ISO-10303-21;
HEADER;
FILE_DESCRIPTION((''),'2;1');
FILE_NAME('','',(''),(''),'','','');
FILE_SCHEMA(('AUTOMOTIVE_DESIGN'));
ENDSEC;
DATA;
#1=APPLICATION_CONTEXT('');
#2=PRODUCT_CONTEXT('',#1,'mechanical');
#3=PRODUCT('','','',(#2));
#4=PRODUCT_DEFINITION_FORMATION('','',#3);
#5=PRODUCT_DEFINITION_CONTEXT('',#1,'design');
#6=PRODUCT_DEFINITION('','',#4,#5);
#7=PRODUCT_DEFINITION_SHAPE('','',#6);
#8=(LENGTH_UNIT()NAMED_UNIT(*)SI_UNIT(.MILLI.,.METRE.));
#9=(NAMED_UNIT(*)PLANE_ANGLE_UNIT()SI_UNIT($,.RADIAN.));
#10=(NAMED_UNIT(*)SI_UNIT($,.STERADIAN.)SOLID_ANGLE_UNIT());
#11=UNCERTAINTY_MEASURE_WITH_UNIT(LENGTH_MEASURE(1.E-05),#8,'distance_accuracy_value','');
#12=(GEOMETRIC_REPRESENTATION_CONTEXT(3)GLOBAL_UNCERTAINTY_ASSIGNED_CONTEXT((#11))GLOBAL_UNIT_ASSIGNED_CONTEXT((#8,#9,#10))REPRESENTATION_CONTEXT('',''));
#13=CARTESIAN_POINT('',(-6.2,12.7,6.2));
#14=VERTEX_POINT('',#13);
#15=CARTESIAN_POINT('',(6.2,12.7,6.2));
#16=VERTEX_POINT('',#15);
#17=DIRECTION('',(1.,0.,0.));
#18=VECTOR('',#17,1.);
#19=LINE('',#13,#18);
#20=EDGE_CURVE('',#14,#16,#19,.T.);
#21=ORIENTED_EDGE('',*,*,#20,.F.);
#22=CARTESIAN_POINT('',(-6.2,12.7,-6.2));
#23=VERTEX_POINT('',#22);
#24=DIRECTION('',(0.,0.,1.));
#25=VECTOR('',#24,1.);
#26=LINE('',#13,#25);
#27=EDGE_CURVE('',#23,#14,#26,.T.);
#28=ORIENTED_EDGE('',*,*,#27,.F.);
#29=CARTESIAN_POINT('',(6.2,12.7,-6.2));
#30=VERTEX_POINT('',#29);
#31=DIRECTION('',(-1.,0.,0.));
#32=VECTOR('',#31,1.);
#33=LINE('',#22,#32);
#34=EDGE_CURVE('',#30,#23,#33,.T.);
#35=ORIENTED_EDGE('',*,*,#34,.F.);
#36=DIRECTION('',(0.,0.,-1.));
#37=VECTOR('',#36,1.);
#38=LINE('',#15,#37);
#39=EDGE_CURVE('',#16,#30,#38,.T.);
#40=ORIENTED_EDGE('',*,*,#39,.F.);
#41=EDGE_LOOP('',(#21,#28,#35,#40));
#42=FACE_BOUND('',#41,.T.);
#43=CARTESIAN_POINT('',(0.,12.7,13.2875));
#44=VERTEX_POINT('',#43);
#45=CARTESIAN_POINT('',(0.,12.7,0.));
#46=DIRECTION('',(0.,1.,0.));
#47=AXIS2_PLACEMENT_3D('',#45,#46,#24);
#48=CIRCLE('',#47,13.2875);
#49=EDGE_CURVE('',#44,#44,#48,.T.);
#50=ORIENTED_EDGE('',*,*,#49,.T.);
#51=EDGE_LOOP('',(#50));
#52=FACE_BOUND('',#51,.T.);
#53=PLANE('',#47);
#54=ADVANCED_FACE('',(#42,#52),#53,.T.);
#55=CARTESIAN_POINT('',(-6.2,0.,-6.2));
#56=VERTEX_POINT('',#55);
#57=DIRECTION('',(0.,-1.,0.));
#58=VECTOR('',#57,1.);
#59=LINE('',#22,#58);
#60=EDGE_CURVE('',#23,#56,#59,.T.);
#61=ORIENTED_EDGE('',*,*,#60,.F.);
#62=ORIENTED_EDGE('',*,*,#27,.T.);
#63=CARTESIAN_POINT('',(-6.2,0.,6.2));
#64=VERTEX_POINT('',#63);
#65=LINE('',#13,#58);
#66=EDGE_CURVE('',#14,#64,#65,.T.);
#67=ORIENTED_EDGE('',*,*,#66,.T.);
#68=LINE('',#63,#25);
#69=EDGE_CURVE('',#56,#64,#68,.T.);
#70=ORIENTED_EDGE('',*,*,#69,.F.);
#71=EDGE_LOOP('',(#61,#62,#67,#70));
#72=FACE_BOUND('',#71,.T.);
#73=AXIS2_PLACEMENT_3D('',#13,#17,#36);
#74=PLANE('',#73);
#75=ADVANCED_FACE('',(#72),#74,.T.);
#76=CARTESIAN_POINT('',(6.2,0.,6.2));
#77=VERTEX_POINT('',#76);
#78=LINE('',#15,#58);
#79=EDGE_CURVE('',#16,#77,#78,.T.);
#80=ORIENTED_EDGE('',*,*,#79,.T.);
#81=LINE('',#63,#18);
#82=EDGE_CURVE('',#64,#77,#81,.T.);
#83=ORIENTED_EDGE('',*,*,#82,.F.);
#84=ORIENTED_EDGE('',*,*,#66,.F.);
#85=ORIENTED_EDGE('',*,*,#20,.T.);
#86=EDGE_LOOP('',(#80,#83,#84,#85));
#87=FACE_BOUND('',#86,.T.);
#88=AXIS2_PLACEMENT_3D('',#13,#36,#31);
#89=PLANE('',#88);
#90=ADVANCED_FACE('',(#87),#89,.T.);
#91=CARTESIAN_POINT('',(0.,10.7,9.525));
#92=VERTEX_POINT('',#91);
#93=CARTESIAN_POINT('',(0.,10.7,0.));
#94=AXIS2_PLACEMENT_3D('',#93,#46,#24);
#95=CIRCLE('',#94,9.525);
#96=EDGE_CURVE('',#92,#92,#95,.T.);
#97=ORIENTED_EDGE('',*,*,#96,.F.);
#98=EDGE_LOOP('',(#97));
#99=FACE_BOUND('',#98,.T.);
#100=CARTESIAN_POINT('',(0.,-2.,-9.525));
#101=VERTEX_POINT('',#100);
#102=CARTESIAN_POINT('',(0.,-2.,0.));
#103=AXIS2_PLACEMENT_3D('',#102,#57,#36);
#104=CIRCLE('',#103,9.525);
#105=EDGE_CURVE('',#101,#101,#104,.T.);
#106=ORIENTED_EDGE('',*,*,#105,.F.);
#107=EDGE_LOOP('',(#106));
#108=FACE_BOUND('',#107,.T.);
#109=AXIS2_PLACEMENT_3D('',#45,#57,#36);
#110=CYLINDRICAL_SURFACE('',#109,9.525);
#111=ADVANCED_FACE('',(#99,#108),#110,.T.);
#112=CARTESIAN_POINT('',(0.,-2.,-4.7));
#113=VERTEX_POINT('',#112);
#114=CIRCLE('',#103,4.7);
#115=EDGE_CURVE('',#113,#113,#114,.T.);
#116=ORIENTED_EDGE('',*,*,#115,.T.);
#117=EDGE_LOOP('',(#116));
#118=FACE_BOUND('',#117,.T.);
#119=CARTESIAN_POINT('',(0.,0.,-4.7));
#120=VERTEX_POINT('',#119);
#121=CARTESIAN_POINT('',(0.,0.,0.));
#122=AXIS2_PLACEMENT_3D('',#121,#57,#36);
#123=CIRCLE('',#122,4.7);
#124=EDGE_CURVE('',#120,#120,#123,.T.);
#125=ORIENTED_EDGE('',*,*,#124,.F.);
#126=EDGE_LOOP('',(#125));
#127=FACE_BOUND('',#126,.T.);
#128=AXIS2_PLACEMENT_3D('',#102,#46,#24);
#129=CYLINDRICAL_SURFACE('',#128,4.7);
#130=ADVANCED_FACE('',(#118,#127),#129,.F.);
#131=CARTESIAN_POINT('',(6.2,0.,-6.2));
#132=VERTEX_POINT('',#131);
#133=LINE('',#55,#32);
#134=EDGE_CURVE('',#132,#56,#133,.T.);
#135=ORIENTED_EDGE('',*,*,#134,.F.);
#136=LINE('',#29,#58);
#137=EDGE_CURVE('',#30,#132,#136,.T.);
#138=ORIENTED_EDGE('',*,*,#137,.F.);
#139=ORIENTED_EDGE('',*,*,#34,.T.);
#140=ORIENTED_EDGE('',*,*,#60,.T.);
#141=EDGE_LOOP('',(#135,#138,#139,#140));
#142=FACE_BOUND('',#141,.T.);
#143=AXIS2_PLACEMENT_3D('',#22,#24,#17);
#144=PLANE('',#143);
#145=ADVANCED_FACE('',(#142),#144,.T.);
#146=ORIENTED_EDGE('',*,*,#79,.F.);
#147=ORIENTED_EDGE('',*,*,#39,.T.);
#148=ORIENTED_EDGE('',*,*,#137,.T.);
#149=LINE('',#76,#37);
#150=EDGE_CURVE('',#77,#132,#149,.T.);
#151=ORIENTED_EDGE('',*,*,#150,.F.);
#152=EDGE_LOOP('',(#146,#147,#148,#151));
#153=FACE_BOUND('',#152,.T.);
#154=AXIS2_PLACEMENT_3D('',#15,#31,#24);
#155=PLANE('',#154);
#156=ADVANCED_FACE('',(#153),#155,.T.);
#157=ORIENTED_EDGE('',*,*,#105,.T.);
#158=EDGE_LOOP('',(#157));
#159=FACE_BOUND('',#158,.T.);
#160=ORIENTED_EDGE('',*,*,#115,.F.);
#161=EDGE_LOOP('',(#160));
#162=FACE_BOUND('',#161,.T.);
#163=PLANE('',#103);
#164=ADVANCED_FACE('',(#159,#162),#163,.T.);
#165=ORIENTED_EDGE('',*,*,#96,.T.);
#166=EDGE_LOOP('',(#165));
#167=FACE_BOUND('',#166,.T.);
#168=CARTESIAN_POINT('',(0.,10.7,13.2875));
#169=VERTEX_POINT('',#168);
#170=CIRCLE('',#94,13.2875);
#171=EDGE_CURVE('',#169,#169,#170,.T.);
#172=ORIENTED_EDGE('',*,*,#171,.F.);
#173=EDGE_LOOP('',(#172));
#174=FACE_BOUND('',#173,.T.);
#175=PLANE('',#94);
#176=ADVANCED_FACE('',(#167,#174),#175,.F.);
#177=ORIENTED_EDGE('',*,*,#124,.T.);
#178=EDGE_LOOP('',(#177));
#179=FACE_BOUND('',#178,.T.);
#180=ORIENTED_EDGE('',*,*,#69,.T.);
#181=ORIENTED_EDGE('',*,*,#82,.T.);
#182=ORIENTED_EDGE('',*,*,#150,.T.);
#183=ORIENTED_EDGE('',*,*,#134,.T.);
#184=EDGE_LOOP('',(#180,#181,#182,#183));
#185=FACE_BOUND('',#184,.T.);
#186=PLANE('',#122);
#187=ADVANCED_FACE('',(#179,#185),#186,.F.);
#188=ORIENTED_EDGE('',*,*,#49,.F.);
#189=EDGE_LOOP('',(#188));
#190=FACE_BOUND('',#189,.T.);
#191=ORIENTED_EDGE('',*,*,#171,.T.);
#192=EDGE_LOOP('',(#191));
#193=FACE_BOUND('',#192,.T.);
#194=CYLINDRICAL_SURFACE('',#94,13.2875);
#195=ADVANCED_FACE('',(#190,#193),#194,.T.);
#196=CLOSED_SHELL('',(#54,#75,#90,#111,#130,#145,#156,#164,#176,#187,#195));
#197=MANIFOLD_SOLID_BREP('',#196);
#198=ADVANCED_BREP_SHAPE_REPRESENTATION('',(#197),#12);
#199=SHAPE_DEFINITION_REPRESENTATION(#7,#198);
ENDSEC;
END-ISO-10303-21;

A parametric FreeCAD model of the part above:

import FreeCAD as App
import Part
import Sketcher


def add_polygon(sketch, points):
    """Adds a closed chain of lines whose ends are joined by coincident constraints."""
    first, n = sketch.GeometryCount, len(points)
    for a, b in zip(points, points[1:] + points[:1]):
        sketch.addGeometry(Part.LineSegment(App.Vector(*a, 0), App.Vector(*b, 0)), False)
    for i in range(n):
        sketch.addConstraint(Sketcher.Constraint("Coincident", first + i, 2, first + (i + 1) % n, 1))

doc = App.newDocument("Part")
params = doc.addObject("Spreadsheet::Sheet", "Params")
for row, (alias, value) in enumerate([
    ("sketch1_diameter", "19.05 mm"),
    ("sketch1_width", "12.4 mm"),
    ("pad1_length", "12.7 mm"),
    ("sketch2_diameter", "19.05 mm"),
    ("pad2_length", "2 mm"),
    ("sketch3_diameter", "9.4 mm"),
    ("sketch3_diameter2", "19.05 mm"),
    ("pad3_length", "2 mm"),
], start=1):
    params.set(f"A{row}", alias)
    params.set(f"B{row}", "=" + value)
    params.setAlias(f"B{row}", alias)

body = doc.addObject("PartDesign::Body", "Body")

# Sketch on XZ plane
sketch1 = body.newObject("Sketcher::SketchObject", "Sketch")
sketch1.AttachmentSupport = (doc.getObject("XZ_Plane"), [""])
sketch1.MapMode = "FlatFace"
sketch1.addGeometry(Part.Circle(App.Vector(0, 0, 0), App.Vector(0, 0, 1), 9.525), False)  # 0
add_polygon(sketch1, [(6.2, 6.2), (-6.2, 6.2), (-6.2, -6.2), (6.2, -6.2)])  # lines 1-4
sketch1.addConstraint([
    Sketcher.Constraint("Horizontal", 1),
    Sketcher.Constraint("Vertical", 2),
    Sketcher.Constraint("Horizontal", 3),
    Sketcher.Constraint("Vertical", 4),
    Sketcher.Constraint("Coincident", 0, 3, -1, 1),
    Sketcher.Constraint("Symmetric", 1, 2, 3, 2, -1, 1),
    Sketcher.Constraint("Equal", 3, 2),
    Sketcher.Constraint("Diameter", 0, 19.05),
    Sketcher.Constraint("DistanceX", 1, 2, 1, 1, 12.4),
])
sketch1.setExpression("Constraints[11]", "Params.sketch1_diameter")
sketch1.setExpression("Constraints[12]", "Params.sketch1_width")
pad1 = body.newObject("PartDesign::Pad", "Pad")
pad1.Profile = sketch1
pad1.setExpression("Length", "Params.pad1_length")
pad1.Reversed = True

# Sketch on XZ plane
sketch2 = body.newObject("Sketcher::SketchObject", "Sketch001")
sketch2.AttachmentSupport = (doc.getObject("XZ_Plane"), [""])
sketch2.MapMode = "FlatFace"
sketch2.AttachmentOffset = App.Placement(App.Vector(0, 0, -10.7), App.Rotation())
sketch2.addGeometry([
    Part.Circle(App.Vector(0, 0, 0), App.Vector(0, 0, 1), 13.2875),
    Part.Circle(App.Vector(0, 0, 0), App.Vector(0, 0, 1), 9.525),
], False)
sketch2.addConstraint([
    Sketcher.Constraint("Coincident", 0, 3, -1, 1),
    Sketcher.Constraint("Coincident", 1, 3, -1, 1),
    Sketcher.Constraint("Diameter", 1, 19.05),
    Sketcher.Constraint("Diameter", 0, 26.575),
])
sketch2.setExpression("Constraints[2]", "Params.sketch2_diameter")
pad2 = body.newObject("PartDesign::Pad", "Pad001")
pad2.Profile = sketch2
pad2.setExpression("Length", "Params.pad2_length")
pad2.Reversed = True

# Sketch on XZ plane
sketch3 = body.newObject("Sketcher::SketchObject", "Sketch002")
sketch3.AttachmentSupport = (doc.getObject("XZ_Plane"), [""])
sketch3.MapMode = "FlatFace"
sketch3.AttachmentOffset = App.Placement(App.Vector(0, 0, 2), App.Rotation())
sketch3.addGeometry([
    Part.Circle(App.Vector(0, 0, 0), App.Vector(0, 0, 1), 9.525),
    Part.Circle(App.Vector(0, 0, 0), App.Vector(0, 0, 1), 4.7),
], False)
sketch3.addConstraint([
    Sketcher.Constraint("Coincident", 0, 3, -1, 1),
    Sketcher.Constraint("Coincident", 1, 3, -1, 1),
    Sketcher.Constraint("Diameter", 1, 9.4),
    Sketcher.Constraint("Diameter", 0, 19.05),
])
sketch3.setExpression("Constraints[2]", "Params.sketch3_diameter")
sketch3.setExpression("Constraints[3]", "Params.sketch3_diameter2")
pad3 = body.newObject("PartDesign::Pad", "Pad002")
pad3.Profile = sketch3
pad3.setExpression("Length", "Params.pad3_length")
pad3.Reversed = True

doc.recompute()
